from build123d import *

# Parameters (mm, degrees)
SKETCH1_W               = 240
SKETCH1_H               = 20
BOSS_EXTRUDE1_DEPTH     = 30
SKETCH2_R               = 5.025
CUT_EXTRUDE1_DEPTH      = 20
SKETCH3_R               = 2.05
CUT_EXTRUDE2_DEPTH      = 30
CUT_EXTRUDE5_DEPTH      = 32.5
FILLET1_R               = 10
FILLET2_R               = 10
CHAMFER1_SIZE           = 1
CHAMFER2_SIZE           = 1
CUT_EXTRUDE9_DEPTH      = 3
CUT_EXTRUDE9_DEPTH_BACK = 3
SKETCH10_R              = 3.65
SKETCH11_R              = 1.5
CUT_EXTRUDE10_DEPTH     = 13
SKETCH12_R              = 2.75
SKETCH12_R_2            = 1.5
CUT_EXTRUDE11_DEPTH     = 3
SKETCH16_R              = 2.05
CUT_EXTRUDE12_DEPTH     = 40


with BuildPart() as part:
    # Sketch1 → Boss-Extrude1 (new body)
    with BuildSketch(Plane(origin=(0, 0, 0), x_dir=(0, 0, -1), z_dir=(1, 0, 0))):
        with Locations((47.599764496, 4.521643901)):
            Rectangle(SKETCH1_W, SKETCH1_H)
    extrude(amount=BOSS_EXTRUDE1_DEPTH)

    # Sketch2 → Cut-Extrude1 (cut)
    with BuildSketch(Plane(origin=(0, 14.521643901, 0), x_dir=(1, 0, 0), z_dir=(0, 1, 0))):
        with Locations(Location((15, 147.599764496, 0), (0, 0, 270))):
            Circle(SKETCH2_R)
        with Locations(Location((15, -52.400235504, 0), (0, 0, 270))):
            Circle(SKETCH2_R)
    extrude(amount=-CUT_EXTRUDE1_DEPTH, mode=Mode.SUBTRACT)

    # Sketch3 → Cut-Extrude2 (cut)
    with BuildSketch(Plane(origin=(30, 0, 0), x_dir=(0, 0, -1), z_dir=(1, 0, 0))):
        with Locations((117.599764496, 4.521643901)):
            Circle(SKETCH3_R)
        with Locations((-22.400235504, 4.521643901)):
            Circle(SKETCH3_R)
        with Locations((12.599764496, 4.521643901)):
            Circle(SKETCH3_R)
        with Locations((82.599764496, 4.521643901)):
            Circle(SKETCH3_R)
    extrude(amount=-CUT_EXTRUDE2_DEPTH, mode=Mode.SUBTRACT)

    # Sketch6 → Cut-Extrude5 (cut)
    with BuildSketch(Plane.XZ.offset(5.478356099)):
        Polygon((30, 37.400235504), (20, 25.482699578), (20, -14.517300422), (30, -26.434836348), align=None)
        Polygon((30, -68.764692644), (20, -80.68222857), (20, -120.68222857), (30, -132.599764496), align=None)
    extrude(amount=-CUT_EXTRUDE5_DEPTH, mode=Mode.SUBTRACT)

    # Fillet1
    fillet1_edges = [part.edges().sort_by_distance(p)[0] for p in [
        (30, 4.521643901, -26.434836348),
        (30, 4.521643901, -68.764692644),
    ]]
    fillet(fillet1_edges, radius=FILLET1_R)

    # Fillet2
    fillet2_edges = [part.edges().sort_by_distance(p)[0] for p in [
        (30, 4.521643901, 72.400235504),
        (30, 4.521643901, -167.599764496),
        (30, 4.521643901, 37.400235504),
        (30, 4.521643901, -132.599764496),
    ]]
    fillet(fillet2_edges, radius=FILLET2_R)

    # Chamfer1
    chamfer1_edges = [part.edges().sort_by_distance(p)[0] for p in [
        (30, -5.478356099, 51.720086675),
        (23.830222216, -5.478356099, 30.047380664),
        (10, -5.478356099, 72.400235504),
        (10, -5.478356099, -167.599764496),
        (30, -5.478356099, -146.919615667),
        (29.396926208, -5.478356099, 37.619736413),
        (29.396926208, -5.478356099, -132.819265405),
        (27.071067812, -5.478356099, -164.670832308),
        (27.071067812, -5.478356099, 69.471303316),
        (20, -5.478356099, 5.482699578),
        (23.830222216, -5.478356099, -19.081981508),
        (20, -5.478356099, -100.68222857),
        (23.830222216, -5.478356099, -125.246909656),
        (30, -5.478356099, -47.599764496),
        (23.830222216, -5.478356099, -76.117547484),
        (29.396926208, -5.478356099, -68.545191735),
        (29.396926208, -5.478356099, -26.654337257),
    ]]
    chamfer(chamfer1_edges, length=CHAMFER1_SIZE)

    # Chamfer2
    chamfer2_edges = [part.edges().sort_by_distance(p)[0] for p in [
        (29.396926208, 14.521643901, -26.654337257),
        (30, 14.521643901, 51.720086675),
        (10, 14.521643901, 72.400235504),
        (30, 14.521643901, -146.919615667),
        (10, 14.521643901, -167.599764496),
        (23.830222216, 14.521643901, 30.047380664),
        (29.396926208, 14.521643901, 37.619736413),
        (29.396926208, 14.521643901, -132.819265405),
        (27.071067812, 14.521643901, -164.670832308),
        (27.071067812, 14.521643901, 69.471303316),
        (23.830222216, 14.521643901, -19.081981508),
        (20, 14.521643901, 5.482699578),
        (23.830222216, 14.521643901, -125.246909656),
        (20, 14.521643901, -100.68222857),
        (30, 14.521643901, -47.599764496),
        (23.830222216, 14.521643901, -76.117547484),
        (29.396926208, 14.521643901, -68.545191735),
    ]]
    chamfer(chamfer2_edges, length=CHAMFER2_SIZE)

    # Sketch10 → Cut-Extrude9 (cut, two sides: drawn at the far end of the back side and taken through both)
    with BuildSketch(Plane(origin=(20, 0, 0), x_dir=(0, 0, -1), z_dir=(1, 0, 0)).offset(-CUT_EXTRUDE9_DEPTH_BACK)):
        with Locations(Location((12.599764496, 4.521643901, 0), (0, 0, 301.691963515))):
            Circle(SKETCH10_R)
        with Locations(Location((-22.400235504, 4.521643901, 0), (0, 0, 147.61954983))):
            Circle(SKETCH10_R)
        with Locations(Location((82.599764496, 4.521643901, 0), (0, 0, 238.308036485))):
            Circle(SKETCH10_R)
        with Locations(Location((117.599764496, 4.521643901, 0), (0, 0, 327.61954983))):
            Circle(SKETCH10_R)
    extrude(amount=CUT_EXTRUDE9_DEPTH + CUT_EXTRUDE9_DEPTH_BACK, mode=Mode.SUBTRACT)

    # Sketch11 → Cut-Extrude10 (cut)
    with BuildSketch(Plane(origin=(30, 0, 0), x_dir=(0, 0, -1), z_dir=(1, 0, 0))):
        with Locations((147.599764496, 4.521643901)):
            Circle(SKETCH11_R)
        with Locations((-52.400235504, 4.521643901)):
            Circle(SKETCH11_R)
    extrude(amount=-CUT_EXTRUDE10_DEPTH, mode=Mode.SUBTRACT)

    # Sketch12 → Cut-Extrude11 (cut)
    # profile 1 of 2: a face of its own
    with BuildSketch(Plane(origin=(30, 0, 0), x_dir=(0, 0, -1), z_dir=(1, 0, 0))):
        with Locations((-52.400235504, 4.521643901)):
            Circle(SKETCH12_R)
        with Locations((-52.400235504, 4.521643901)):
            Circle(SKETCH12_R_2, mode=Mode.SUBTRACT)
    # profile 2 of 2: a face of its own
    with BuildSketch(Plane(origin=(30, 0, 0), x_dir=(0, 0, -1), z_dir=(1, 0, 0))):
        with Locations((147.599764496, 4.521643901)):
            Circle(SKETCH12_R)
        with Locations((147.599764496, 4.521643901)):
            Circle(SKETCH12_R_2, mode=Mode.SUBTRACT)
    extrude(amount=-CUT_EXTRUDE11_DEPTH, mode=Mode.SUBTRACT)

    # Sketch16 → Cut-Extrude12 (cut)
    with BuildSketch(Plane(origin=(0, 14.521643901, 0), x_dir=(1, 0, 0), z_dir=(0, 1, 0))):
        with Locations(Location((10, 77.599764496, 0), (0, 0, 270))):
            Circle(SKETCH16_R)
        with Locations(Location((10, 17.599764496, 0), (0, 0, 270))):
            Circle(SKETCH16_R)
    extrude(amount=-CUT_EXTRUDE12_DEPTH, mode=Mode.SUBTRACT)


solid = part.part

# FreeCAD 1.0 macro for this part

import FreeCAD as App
import Part
import Sketcher
Q = App.Units.Quantity


def edges_at(feature, points):
    """Names of the edges that pass closest to the given points."""
    edges = feature.Shape.Edges
    near = lambda p: min(range(len(edges)), key=lambda i: edges[i].distToShape(Part.Vertex(*p))[0])
    return sorted({f"Edge{near(p) + 1}" for p in points})

doc = App.newDocument("Part")
body = doc.addObject("PartDesign::Body", "Body")

# Sketch on YZ plane
sketch1 = body.newObject("Sketcher::SketchObject", "Sketch")
sketch1.AttachmentSupport = (doc.getObject("YZ_Plane"), [""])
sketch1.MapMode = "FlatFace"
sketch1.addGeometry([
    Part.LineSegment(App.Vector(15, 72, 0), App.Vector(-5, 72, 0)),
    Part.LineSegment(App.Vector(-5, 72, 0), App.Vector(-5, -168, 0)),
    Part.LineSegment(App.Vector(-5, -168, 0), App.Vector(15, -168, 0)),
    Part.LineSegment(App.Vector(15, -168, 0), App.Vector(15, 72, 0)),
], False)
sketch1.addConstraint([
    Sketcher.Constraint("Coincident", 0, 2, 1, 1),
    Sketcher.Constraint("Coincident", 1, 2, 2, 1),
    Sketcher.Constraint("Coincident", 2, 2, 3, 1),
    Sketcher.Constraint("Coincident", 3, 2, 0, 1),
    Sketcher.Constraint("Horizontal", 0),
    Sketcher.Constraint("Vertical", 1),
    Sketcher.Constraint("Horizontal", 2),
    Sketcher.Constraint("Vertical", 3),
    Sketcher.Constraint("DistanceX", 0, 2, 0, 1, Q("20 mm")),
    Sketcher.Constraint("DistanceY", 1, 2, 1, 1, Q("240 mm")),
    Sketcher.Constraint("DistanceX", 0, 2, -1, 1, Q("5.478356 mm")),
    Sketcher.Constraint("DistanceY", -1, 1, 0, 2, Q("72.400236 mm")),
])
pad1 = body.newObject("PartDesign::Pad", "Pad")
pad1.Profile = sketch1
pad1.Length = 30

# Sketch on XZ plane
sketch2 = body.newObject("Sketcher::SketchObject", "Sketch001")
sketch2.AttachmentSupport = (doc.getObject("XZ_Plane"), [""])
sketch2.MapMode = "FlatFace"
sketch2.AttachmentOffset = App.Placement(App.Vector(0, 0, -14.521644), App.Rotation())
sketch2.addGeometry([
    Part.Circle(App.Vector(15, -148, 0), App.Vector(0, 0, 1), 5),
    Part.Circle(App.Vector(15, 52, 0), App.Vector(0, 0, 1), 5),
], False)
sketch2.addConstraint([
    Sketcher.Constraint("Equal", 0, 1),
    Sketcher.Constraint("Vertical", 0, 3, 1, 3),
    Sketcher.Constraint("Diameter", 0, Q("10.05 mm")),
    Sketcher.Constraint("DistanceX", -1, 1, 0, 3, Q("15 mm")),
    Sketcher.Constraint("DistanceY", 0, 3, 1, 3, Q("200 mm")),
    Sketcher.Constraint("DistanceY", 0, 3, -1, 1, Q("147.599764 mm")),
])
pocket1 = body.newObject("PartDesign::Pocket", "Pocket")
pocket1.Profile = sketch2
pocket1.Length = 20
pocket1.Reversed = True

# Sketch on YZ plane
sketch3 = body.newObject("Sketcher::SketchObject", "Sketch002")
sketch3.AttachmentSupport = (doc.getObject("YZ_Plane"), [""])
sketch3.MapMode = "FlatFace"
sketch3.AttachmentOffset = App.Placement(App.Vector(0, 0, 30), App.Rotation())
sketch3.addGeometry([
    Part.Circle(App.Vector(4.5, -117.6, 0), App.Vector(0, 0, 1), 2),
    Part.Circle(App.Vector(4.5, 22.4, 0), App.Vector(0, 0, 1), 2),
    Part.Circle(App.Vector(4.5, -12.6, 0), App.Vector(0, 0, 1), 2),
    Part.Circle(App.Vector(4.5, -82.6, 0), App.Vector(0, 0, 1), 2),
], False)
sketch3.addConstraint([
    Sketcher.Constraint("Equal", 0, 1),
    Sketcher.Constraint("Equal", 1, 2),
    Sketcher.Constraint("Equal", 2, 3),
    Sketcher.Constraint("Vertical", 0, 3, 1, 3),
    Sketcher.Constraint("Vertical", 1, 3, 2, 3),
    Sketcher.Constraint("Vertical", 2, 3, 3, 3),
    Sketcher.Constraint("Diameter", 0, Q("4.1 mm")),
    Sketcher.Constraint("DistanceY", 0, 3, 1, 3, Q("140 mm")),
    Sketcher.Constraint("DistanceY", 2, 3, 1, 3, Q("35 mm")),
    Sketcher.Constraint("DistanceY", 0, 3, 3, 3, Q("35 mm")),
    Sketcher.Constraint("DistanceX", -1, 1, 0, 3, Q("4.521644 mm")),
    Sketcher.Constraint("DistanceY", 0, 3, -1, 1, Q("117.599764 mm")),
])
pocket2 = body.newObject("PartDesign::Pocket", "Pocket001")
pocket2.Profile = sketch3
pocket2.Length = 30

# Sketch on XZ plane
sketch4 = body.newObject("Sketcher::SketchObject", "Sketch003")
sketch4.AttachmentSupport = (doc.getObject("XZ_Plane"), [""])
sketch4.MapMode = "FlatFace"
sketch4.AttachmentOffset = App.Placement(App.Vector(0, 0, 5.478356), App.Rotation())
sketch4.addGeometry([
    Part.LineSegment(App.Vector(30, 37, 0), App.Vector(20, 25, 0)),  # 0
    Part.LineSegment(App.Vector(20, 25, 0), App.Vector(20, -15, 0)),  # 1
    Part.LineSegment(App.Vector(20, -15, 0), App.Vector(30, -26, 0)),  # 2
    Part.LineSegment(App.Vector(30, -26, 0), App.Vector(30, 37, 0)),  # 3
    Part.LineSegment(App.Vector(30, -69, 0), App.Vector(20, -81, 0)),  # 4
    Part.LineSegment(App.Vector(20, -81, 0), App.Vector(20, -121, 0)),  # 5
    Part.LineSegment(App.Vector(20, -121, 0), App.Vector(30, -133, 0)),  # 6
    Part.LineSegment(App.Vector(30, -133, 0), App.Vector(30, -69, 0)),  # 7
], False)
sketch4.addConstraint([
    Sketcher.Constraint("Coincident", 0, 2, 1, 1),
    Sketcher.Constraint("Coincident", 1, 2, 2, 1),
    Sketcher.Constraint("Coincident", 2, 2, 3, 1),
    Sketcher.Constraint("Coincident", 3, 2, 0, 1),
    Sketcher.Constraint("Coincident", 4, 2, 5, 1),
    Sketcher.Constraint("Coincident", 5, 2, 6, 1),
    Sketcher.Constraint("Coincident", 6, 2, 7, 1),
    Sketcher.Constraint("Coincident", 7, 2, 4, 1),
    Sketcher.Constraint("Vertical", 1),
    Sketcher.Constraint("Vertical", 3),
    Sketcher.Constraint("Vertical", 5),
    Sketcher.Constraint("Vertical", 7),
    Sketcher.Constraint("Parallel", 0, 4),
    Sketcher.Constraint("Parallel", 2, 6),
    Sketcher.Constraint("Vertical", 1, 2, 4, 2),
    Sketcher.Constraint("Vertical", 3, 2, 6, 2),
    Sketcher.Constraint("Equal", 1, 5),
    Sketcher.Constraint("Equal", 0, 2),
    Sketcher.Constraint("DistanceY", 1, 2, 1, 1, Q("40 mm")),
    Sketcher.Constraint("Angle", 0, Q("-130 deg")),
    Sketcher.Constraint("DistanceX", -1, 1, 0, 2, Q("20 mm")),
    Sketcher.Constraint("DistanceX", -1, 1, 2, 2, Q("30 mm")),
    Sketcher.Constraint("DistanceY", -1, 1, 0, 2, Q("25.4827 mm")),
    Sketcher.Constraint("DistanceY", 4, 2, -1, 1, Q("80.682229 mm")),
])
pocket3 = body.newObject("PartDesign::Pocket", "Pocket002")
pocket3.Profile = sketch4
pocket3.Length = 32.5
doc.recompute()

fillet = body.newObject("PartDesign::Fillet", "Fillet")
fillet.Base = (pocket3, edges_at(pocket3, [(30, 4.522, -26.435), (30, 4.522, -68.765)]))
fillet.Radius = 10
doc.recompute()

fillet2 = body.newObject("PartDesign::Fillet", "Fillet001")
fillet2.Base = (fillet, edges_at(fillet, [
    (30, 4.522, 72.4),
    (30, 4.522, -167.6),
    (30, 4.522, 37.4),
    (30, 4.522, -132.6),
]))
fillet2.Radius = 10
doc.recompute()

chamfer = body.newObject("PartDesign::Chamfer", "Chamfer")
chamfer.Base = (fillet2, edges_at(fillet2, [
    (30, -5.478, 51.72),
    (23.83, -5.478, 30.047),
    (10, -5.478, 72.4),
    (10, -5.478, -167.6),
    (30, -5.478, -146.92),
    (29.397, -5.478, 37.62),
    (29.397, -5.478, -132.819),
    (27.071, -5.478, -164.671),
    (27.071, -5.478, 69.471),
    (20, -5.478, 5.483),
    (23.83, -5.478, -19.082),
    (20, -5.478, -100.682),
    (23.83, -5.478, -125.247),
    (30, -5.478, -47.6),
    (23.83, -5.478, -76.118),
    (29.397, -5.478, -68.545),
    (29.397, -5.478, -26.654),
]))
chamfer.Size = 1
doc.recompute()

chamfer2 = body.newObject("PartDesign::Chamfer", "Chamfer001")
chamfer2.Base = (chamfer, edges_at(chamfer, [
    (29.397, 14.522, -26.654),
    (30, 14.522, 51.72),
    (10, 14.522, 72.4),
    (30, 14.522, -146.92),
    (10, 14.522, -167.6),
    (23.83, 14.522, 30.047),
    (29.397, 14.522, 37.62),
    (29.397, 14.522, -132.819),
    (27.071, 14.522, -164.671),
    (27.071, 14.522, 69.471),
    (23.83, 14.522, -19.082),
    (20, 14.522, 5.483),
    (23.83, 14.522, -125.247),
    (20, 14.522, -100.682),
    (30, 14.522, -47.6),
    (23.83, 14.522, -76.118),
    (29.397, 14.522, -68.545),
]))
chamfer2.Size = 1

# Sketch on YZ plane
sketch5 = body.newObject("Sketcher::SketchObject", "Sketch004")
sketch5.AttachmentSupport = (doc.getObject("YZ_Plane"), [""])
sketch5.MapMode = "FlatFace"
sketch5.AttachmentOffset = App.Placement(App.Vector(0, 0, 20), App.Rotation())
sketch5.addGeometry([
    Part.Circle(App.Vector(4.5, -12.6, 0), App.Vector(0, 0, 1), 3.6),
    Part.Circle(App.Vector(4.5, 22.4, 0), App.Vector(0, 0, 1), 3.6),
    Part.Circle(App.Vector(4.5, -82.6, 0), App.Vector(0, 0, 1), 3.6),
    Part.Circle(App.Vector(4.5, -117.6, 0), App.Vector(0, 0, 1), 3.6),
], False)
sketch5.addConstraint([
    Sketcher.Constraint("Equal", 0, 1),
    Sketcher.Constraint("Equal", 1, 2),
    Sketcher.Constraint("Equal", 2, 3),
    Sketcher.Constraint("Vertical", 0, 3, 1, 3),
    Sketcher.Constraint("Vertical", 1, 3, 2, 3),
    Sketcher.Constraint("Vertical", 2, 3, 3, 3),
    Sketcher.Constraint("Diameter", 0, Q("7.3 mm")),
    Sketcher.Constraint("DistanceY", 0, 3, 1, 3, Q("35 mm")),
    Sketcher.Constraint("DistanceY", 2, 3, 0, 3, Q("70 mm")),
    Sketcher.Constraint("DistanceY", 3, 3, 2, 3, Q("35 mm")),
    Sketcher.Constraint("DistanceX", -1, 1, 0, 3, Q("4.521644 mm")),
    Sketcher.Constraint("DistanceY", 0, 3, -1, 1, Q("12.599764 mm")),
])
pocket4 = body.newObject("PartDesign::Pocket", "Pocket003")
pocket4.Profile = sketch5
pocket4.Type = "TwoLengths"
pocket4.Length = 3
pocket4.Length2 = 3
pocket4.Reversed = True

# Sketch on YZ plane
sketch6 = body.newObject("Sketcher::SketchObject", "Sketch005")
sketch6.AttachmentSupport = (doc.getObject("YZ_Plane"), [""])
sketch6.MapMode = "FlatFace"
sketch6.AttachmentOffset = App.Placement(App.Vector(0, 0, 30), App.Rotation())
sketch6.addGeometry([
    Part.Circle(App.Vector(4.5, -147.6, 0), App.Vector(0, 0, 1), 1.5),
    Part.Circle(App.Vector(4.5, 52.4, 0), App.Vector(0, 0, 1), 1.5),
], False)
sketch6.addConstraint([
    Sketcher.Constraint("Equal", 0, 1),
    Sketcher.Constraint("Vertical", 0, 3, 1, 3),
    Sketcher.Constraint("Diameter", 0, Q("3 mm")),
    Sketcher.Constraint("DistanceY", 0, 3, 1, 3, Q("200 mm")),
    Sketcher.Constraint("DistanceX", -1, 1, 0, 3, Q("4.521644 mm")),
    Sketcher.Constraint("DistanceY", 0, 3, -1, 1, Q("147.599764 mm")),
])
pocket5 = body.newObject("PartDesign::Pocket", "Pocket004")
pocket5.Profile = sketch6
pocket5.Length = 13

# Sketch on YZ plane
sketch7 = body.newObject("Sketcher::SketchObject", "Sketch006")
sketch7.AttachmentSupport = (doc.getObject("YZ_Plane"), [""])
sketch7.MapMode = "FlatFace"
sketch7.AttachmentOffset = App.Placement(App.Vector(0, 0, 30), App.Rotation())
sketch7.addGeometry([
    Part.Circle(App.Vector(4.5, 52.4, 0), App.Vector(0, 0, 1), 2.8),
    Part.Circle(App.Vector(4.5, 52.4, 0), App.Vector(0, 0, 1), 1.5),
    Part.Circle(App.Vector(4.5, -147.6, 0), App.Vector(0, 0, 1), 2.8),
    Part.Circle(App.Vector(4.5, -147.6, 0), App.Vector(0, 0, 1), 1.5),
], False)
sketch7.addConstraint([
    Sketcher.Constraint("Coincident", 1, 3, 0, 3),
    Sketcher.Constraint("Coincident", 3, 3, 2, 3),
    Sketcher.Constraint("Equal", 0, 2),
    Sketcher.Constraint("Equal", 1, 3),
    Sketcher.Constraint("Vertical", 1, 3, 2, 3),
    Sketcher.Constraint("Diameter", 1, Q("3 mm")),
    Sketcher.Constraint("Diameter", 0, Q("5.5 mm")),
    Sketcher.Constraint("DistanceY", 2, 3, 0, 3, Q("200 mm")),
    Sketcher.Constraint("DistanceX", -1, 1, 0, 3, Q("4.521644 mm")),
    Sketcher.Constraint("DistanceY", -1, 1, 0, 3, Q("52.400236 mm")),
])
pocket6 = body.newObject("PartDesign::Pocket", "Pocket005")
pocket6.Profile = sketch7
pocket6.Length = 3

# Sketch on XZ plane
sketch8 = body.newObject("Sketcher::SketchObject", "Sketch007")
sketch8.AttachmentSupport = (doc.getObject("XZ_Plane"), [""])
sketch8.MapMode = "FlatFace"
sketch8.AttachmentOffset = App.Placement(App.Vector(0, 0, -14.521644), App.Rotation())
sketch8.addGeometry([
    Part.Circle(App.Vector(10, -77.6, 0), App.Vector(0, 0, 1), 2),
    Part.Circle(App.Vector(10, -17.6, 0), App.Vector(0, 0, 1), 2),
], False)
sketch8.addConstraint([
    Sketcher.Constraint("Equal", 0, 1),
    Sketcher.Constraint("Vertical", 0, 3, 1, 3),
    Sketcher.Constraint("Diameter", 0, Q("4.1 mm")),
    Sketcher.Constraint("DistanceX", -1, 1, 0, 3, Q("10 mm")),
    Sketcher.Constraint("DistanceY", 0, 3, 1, 3, Q("60 mm")),
    Sketcher.Constraint("DistanceY", 0, 3, -1, 1, Q("77.599764 mm")),
])
pocket7 = body.newObject("PartDesign::Pocket", "Pocket006")
pocket7.Profile = sketch8
pocket7.Length = 40
pocket7.Reversed = True

doc.recompute()
